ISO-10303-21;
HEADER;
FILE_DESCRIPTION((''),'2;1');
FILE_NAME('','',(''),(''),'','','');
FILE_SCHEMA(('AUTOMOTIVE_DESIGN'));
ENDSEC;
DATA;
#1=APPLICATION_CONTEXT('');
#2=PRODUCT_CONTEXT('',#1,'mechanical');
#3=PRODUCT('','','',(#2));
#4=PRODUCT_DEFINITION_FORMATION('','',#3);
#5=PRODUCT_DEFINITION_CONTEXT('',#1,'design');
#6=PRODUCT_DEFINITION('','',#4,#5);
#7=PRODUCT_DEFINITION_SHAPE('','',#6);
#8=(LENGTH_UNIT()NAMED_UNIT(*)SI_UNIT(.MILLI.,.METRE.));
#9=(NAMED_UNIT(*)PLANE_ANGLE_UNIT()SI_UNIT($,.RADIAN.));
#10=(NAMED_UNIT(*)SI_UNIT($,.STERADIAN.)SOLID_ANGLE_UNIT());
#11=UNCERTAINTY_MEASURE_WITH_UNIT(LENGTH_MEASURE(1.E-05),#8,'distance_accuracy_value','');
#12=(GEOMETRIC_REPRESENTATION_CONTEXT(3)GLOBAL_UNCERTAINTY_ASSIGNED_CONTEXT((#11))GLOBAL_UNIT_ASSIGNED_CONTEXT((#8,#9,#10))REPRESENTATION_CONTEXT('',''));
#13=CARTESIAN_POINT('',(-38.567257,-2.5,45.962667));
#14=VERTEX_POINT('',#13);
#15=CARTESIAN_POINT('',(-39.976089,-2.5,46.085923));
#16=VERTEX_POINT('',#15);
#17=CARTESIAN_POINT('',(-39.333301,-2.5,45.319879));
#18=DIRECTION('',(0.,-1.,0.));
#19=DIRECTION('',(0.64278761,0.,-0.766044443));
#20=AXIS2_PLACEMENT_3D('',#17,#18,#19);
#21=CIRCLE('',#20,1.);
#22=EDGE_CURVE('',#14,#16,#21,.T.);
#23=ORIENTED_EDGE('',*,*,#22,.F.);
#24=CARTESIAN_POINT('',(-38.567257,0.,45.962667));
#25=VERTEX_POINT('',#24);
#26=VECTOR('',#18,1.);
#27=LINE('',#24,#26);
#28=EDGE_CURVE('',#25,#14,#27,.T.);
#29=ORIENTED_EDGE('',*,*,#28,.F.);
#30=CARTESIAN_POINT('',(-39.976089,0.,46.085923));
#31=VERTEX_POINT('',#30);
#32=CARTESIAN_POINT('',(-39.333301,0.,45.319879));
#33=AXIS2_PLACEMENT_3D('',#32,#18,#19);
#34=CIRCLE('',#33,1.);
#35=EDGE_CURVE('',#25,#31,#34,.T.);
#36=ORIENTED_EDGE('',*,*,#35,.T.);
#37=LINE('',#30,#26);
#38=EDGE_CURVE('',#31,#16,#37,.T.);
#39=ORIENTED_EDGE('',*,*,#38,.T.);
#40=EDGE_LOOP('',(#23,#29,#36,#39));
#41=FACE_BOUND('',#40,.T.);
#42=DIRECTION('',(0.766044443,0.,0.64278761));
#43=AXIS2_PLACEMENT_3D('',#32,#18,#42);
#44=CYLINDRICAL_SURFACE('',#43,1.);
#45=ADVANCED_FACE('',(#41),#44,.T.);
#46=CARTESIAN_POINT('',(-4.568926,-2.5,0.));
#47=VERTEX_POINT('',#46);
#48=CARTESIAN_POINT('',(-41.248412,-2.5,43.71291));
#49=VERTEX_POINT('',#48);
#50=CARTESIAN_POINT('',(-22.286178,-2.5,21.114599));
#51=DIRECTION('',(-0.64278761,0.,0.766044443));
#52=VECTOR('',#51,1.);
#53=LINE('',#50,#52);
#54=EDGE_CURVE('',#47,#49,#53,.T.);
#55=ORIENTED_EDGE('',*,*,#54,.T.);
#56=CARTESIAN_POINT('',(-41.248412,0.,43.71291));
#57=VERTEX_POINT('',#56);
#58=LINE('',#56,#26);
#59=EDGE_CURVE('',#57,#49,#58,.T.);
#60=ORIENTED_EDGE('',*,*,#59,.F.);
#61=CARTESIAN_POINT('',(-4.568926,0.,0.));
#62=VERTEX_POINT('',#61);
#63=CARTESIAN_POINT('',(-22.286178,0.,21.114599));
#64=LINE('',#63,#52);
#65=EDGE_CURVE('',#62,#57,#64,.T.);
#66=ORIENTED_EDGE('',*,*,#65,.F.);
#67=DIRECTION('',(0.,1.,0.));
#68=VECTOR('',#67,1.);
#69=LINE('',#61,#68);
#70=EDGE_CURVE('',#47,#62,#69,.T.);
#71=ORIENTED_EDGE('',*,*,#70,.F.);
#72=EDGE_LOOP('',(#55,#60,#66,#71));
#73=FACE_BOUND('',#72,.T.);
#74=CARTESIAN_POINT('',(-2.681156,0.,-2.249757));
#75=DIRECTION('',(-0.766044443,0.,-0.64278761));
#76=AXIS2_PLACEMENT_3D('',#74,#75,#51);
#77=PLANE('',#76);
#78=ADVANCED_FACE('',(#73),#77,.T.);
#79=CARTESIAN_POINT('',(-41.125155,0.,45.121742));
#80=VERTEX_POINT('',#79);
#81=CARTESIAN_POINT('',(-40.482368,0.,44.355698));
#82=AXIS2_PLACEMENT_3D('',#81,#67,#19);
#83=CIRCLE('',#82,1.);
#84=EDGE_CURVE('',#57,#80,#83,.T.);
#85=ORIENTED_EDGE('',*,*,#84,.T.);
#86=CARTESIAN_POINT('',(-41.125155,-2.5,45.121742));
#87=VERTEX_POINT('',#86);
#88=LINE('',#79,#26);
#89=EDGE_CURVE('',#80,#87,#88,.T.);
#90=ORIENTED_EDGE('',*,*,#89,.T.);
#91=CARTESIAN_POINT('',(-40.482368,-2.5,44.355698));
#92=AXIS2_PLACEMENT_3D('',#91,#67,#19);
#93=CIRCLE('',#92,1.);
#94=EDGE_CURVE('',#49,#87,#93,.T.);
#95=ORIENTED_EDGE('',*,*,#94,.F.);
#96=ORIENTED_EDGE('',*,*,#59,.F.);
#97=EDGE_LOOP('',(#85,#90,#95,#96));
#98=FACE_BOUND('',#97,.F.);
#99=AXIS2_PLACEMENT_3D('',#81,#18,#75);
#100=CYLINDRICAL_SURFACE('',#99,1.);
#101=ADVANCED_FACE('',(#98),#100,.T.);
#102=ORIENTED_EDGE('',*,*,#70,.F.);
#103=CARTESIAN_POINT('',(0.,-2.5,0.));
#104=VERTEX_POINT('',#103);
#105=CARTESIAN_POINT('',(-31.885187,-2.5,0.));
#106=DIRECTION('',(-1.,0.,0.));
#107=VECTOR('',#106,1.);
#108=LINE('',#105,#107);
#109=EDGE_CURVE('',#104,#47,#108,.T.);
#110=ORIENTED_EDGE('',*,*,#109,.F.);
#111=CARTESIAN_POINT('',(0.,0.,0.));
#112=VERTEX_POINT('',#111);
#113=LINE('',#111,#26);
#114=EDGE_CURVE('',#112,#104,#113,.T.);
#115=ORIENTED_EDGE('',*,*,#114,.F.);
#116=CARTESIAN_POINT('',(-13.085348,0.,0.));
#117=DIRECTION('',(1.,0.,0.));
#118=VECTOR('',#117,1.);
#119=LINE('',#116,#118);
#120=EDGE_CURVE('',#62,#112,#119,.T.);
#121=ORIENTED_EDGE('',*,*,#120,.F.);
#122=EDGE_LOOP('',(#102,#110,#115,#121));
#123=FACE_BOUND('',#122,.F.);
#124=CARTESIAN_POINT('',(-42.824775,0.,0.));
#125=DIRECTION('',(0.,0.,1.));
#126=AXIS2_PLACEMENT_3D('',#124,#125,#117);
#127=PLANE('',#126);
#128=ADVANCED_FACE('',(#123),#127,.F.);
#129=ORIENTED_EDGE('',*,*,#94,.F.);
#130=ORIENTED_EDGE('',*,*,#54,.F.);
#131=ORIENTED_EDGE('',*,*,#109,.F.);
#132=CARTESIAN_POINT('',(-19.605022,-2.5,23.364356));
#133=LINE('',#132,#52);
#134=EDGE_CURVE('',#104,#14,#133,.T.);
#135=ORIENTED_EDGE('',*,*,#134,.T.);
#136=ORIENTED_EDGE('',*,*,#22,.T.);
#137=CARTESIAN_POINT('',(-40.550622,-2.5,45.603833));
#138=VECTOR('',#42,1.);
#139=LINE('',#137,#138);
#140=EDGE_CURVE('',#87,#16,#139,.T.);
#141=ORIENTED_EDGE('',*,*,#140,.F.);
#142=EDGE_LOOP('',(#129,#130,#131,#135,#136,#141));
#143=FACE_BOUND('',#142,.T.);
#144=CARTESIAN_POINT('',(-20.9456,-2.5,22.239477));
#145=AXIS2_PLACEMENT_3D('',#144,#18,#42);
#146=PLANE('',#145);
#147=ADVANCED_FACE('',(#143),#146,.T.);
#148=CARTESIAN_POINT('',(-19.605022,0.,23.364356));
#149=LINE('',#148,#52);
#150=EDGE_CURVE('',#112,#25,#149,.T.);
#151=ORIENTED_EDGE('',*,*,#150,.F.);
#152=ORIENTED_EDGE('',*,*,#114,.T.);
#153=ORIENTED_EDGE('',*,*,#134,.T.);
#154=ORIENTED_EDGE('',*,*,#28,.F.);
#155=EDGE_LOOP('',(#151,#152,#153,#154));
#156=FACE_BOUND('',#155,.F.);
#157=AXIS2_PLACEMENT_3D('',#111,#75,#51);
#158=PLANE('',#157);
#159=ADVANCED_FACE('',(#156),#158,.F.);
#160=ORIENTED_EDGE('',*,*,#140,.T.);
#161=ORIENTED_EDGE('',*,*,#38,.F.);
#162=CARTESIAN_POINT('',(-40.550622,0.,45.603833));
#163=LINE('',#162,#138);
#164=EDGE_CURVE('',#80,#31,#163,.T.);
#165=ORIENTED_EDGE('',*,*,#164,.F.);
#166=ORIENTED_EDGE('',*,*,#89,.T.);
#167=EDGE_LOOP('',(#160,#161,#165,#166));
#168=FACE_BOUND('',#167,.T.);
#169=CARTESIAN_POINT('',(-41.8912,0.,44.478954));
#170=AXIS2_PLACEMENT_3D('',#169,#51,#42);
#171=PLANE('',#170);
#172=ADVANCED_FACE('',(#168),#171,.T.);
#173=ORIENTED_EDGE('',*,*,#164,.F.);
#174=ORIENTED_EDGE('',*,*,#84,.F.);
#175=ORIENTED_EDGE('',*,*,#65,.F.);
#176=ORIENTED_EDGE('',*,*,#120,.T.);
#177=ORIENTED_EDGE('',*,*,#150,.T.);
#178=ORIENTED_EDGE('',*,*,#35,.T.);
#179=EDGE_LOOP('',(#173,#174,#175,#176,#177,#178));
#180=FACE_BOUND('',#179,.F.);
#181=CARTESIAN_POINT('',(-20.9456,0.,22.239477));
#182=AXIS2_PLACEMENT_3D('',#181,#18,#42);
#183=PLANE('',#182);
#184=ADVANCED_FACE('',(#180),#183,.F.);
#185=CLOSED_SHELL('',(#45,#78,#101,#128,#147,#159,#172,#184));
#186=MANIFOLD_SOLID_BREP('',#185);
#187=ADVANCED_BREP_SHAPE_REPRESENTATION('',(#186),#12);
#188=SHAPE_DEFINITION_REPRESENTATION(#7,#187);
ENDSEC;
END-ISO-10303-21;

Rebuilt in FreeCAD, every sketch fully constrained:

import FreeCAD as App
import Part
import Sketcher

V = App.Vector
Q = App.Units.Quantity


def edges_at(feature, points):
    """Names of the edges that pass closest to the given points."""
    edges = feature.Shape.Edges
    near = lambda p: min(range(len(edges)), key=lambda i: edges[i].distToShape(Part.Vertex(*p))[0])
    return sorted({f"Edge{near(p) + 1}" for p in points})

doc = App.newDocument("Part")
body = doc.addObject("PartDesign::Body", "Body")

# Sketch on XZ plane
sketch1 = doc.addObject("Sketcher::SketchObject", "Sketch")
body.addObject(sketch1)
sketch1.AttachmentSupport = (doc.XZ_Plane, [""])
sketch1.MapMode = "FlatFace"
sketch1.addGeometry(Part.LineSegment(V(-3.5, 61, 0), V(-3.5, 0, 0)), False)
sketch1.addGeometry(Part.LineSegment(V(-3.5, 0, 0), V(0, 0, 0)), False)
sketch1.addGeometry(Part.LineSegment(V(0, 0, 0), V(0, 61, 0)), False)
sketch1.addGeometry(Part.LineSegment(V(0, 61, 0), V(-3.5, 61, 0)), False)
sketch1.addConstraint(Sketcher.Constraint("Coincident", 0, 2, 1, 1))
sketch1.addConstraint(Sketcher.Constraint("Coincident", 1, 2, 2, 1))
sketch1.addConstraint(Sketcher.Constraint("Coincident", 2, 2, 3, 1))
sketch1.addConstraint(Sketcher.Constraint("Coincident", 3, 2, 0, 1))
sketch1.addConstraint(Sketcher.Constraint("Vertical", 0))
sketch1.addConstraint(Sketcher.Constraint("Horizontal", 1))
sketch1.addConstraint(Sketcher.Constraint("Vertical", 2))
sketch1.addConstraint(Sketcher.Constraint("Horizontal", 3))
sketch1.addConstraint(Sketcher.Constraint("Coincident", 1, 2, -1, 1))
sketch1.addConstraint(Sketcher.Constraint("DistanceY", 0, 2, 0, 1, Q("61 mm")))
sketch1.addConstraint(Sketcher.Constraint("DistanceX", 1, 1, 1, 2, Q("3.5 mm")))
pad1 = doc.addObject("PartDesign::Pad", "Pad")
body.addObject(pad1)
pad1.Profile = sketch1
pad1.Length = 2.5
doc.recompute()

fillet = doc.addObject("PartDesign::Fillet", "Fillet")
body.addObject(fillet)
fillet.Base = (pad1, edges_at(pad1, [(-3.5, -1.25, 61), (0, -1.25, 61)]))
fillet.Radius = 1
body2 = doc.addObject("PartDesign::Body", "Body001")
doc.recompute()

body.Placement = App.Placement(V(0, 0, 0), App.Rotation(V(0, 1, 0), 320))
boolean = doc.addObject("PartDesign::Boolean", "Boolean")
body2.addObject(boolean)
boolean.Type = "Fuse"
boolean.addObjects([body])
body3 = doc.addObject("PartDesign::Body", "Body002")

# Sketch on XZ plane
sketch2 = doc.addObject("Sketcher::SketchObject", "Sketch001")
body3.addObject(sketch2)
sketch2.AttachmentSupport = (doc.getObject("XZ_Plane002"), [""])
sketch2.MapMode = "FlatFace"
sketch2.addGeometry(Part.LineSegment(V(-43, 0, 0), V(-43, -10, 0)), False)
sketch2.addGeometry(Part.LineSegment(V(-43, -10, 0), V(17, -10, 0)), False)
sketch2.addGeometry(Part.LineSegment(V(17, -10, 0), V(17, 0, 0)), False)
sketch2.addGeometry(Part.LineSegment(V(17, 0, 0), V(-43, 0, 0)), False)
sketch2.addConstraint(Sketcher.Constraint("Coincident", 0, 2, 1, 1))
sketch2.addConstraint(Sketcher.Constraint("Coincident", 1, 2, 2, 1))
sketch2.addConstraint(Sketcher.Constraint("Coincident", 2, 2, 3, 1))
sketch2.addConstraint(Sketcher.Constraint("Coincident", 3, 2, 0, 1))
sketch2.addConstraint(Sketcher.Constraint("Vertical", 0))
sketch2.addConstraint(Sketcher.Constraint("Horizontal", 1))
sketch2.addConstraint(Sketcher.Constraint("Vertical", 2))
sketch2.addConstraint(Sketcher.Constraint("Horizontal", 3))
sketch2.addConstraint(Sketcher.Constraint("PointOnObject", 2, 2, -1))
sketch2.addConstraint(Sketcher.Constraint("DistanceX", 1, 1, 1, 2, Q("59.478855 mm")))
sketch2.addConstraint(Sketcher.Constraint("DistanceY", 0, 2, 0, 1, Q("9.754532 mm")))
sketch2.addConstraint(Sketcher.Constraint("DistanceX", -1, 1, 1, 2, Q("16.65408 mm")))
pad2 = doc.addObject("PartDesign::Pad", "Pad001")
body3.addObject(pad2)
pad2.Profile = sketch2
pad2.Length = 25
doc.recompute()

boolean2 = doc.addObject("PartDesign::Boolean", "Boolean001")
body2.addObject(boolean2)
boolean2.Type = "Cut"
boolean2.addObjects([body3])

doc.recompute()
